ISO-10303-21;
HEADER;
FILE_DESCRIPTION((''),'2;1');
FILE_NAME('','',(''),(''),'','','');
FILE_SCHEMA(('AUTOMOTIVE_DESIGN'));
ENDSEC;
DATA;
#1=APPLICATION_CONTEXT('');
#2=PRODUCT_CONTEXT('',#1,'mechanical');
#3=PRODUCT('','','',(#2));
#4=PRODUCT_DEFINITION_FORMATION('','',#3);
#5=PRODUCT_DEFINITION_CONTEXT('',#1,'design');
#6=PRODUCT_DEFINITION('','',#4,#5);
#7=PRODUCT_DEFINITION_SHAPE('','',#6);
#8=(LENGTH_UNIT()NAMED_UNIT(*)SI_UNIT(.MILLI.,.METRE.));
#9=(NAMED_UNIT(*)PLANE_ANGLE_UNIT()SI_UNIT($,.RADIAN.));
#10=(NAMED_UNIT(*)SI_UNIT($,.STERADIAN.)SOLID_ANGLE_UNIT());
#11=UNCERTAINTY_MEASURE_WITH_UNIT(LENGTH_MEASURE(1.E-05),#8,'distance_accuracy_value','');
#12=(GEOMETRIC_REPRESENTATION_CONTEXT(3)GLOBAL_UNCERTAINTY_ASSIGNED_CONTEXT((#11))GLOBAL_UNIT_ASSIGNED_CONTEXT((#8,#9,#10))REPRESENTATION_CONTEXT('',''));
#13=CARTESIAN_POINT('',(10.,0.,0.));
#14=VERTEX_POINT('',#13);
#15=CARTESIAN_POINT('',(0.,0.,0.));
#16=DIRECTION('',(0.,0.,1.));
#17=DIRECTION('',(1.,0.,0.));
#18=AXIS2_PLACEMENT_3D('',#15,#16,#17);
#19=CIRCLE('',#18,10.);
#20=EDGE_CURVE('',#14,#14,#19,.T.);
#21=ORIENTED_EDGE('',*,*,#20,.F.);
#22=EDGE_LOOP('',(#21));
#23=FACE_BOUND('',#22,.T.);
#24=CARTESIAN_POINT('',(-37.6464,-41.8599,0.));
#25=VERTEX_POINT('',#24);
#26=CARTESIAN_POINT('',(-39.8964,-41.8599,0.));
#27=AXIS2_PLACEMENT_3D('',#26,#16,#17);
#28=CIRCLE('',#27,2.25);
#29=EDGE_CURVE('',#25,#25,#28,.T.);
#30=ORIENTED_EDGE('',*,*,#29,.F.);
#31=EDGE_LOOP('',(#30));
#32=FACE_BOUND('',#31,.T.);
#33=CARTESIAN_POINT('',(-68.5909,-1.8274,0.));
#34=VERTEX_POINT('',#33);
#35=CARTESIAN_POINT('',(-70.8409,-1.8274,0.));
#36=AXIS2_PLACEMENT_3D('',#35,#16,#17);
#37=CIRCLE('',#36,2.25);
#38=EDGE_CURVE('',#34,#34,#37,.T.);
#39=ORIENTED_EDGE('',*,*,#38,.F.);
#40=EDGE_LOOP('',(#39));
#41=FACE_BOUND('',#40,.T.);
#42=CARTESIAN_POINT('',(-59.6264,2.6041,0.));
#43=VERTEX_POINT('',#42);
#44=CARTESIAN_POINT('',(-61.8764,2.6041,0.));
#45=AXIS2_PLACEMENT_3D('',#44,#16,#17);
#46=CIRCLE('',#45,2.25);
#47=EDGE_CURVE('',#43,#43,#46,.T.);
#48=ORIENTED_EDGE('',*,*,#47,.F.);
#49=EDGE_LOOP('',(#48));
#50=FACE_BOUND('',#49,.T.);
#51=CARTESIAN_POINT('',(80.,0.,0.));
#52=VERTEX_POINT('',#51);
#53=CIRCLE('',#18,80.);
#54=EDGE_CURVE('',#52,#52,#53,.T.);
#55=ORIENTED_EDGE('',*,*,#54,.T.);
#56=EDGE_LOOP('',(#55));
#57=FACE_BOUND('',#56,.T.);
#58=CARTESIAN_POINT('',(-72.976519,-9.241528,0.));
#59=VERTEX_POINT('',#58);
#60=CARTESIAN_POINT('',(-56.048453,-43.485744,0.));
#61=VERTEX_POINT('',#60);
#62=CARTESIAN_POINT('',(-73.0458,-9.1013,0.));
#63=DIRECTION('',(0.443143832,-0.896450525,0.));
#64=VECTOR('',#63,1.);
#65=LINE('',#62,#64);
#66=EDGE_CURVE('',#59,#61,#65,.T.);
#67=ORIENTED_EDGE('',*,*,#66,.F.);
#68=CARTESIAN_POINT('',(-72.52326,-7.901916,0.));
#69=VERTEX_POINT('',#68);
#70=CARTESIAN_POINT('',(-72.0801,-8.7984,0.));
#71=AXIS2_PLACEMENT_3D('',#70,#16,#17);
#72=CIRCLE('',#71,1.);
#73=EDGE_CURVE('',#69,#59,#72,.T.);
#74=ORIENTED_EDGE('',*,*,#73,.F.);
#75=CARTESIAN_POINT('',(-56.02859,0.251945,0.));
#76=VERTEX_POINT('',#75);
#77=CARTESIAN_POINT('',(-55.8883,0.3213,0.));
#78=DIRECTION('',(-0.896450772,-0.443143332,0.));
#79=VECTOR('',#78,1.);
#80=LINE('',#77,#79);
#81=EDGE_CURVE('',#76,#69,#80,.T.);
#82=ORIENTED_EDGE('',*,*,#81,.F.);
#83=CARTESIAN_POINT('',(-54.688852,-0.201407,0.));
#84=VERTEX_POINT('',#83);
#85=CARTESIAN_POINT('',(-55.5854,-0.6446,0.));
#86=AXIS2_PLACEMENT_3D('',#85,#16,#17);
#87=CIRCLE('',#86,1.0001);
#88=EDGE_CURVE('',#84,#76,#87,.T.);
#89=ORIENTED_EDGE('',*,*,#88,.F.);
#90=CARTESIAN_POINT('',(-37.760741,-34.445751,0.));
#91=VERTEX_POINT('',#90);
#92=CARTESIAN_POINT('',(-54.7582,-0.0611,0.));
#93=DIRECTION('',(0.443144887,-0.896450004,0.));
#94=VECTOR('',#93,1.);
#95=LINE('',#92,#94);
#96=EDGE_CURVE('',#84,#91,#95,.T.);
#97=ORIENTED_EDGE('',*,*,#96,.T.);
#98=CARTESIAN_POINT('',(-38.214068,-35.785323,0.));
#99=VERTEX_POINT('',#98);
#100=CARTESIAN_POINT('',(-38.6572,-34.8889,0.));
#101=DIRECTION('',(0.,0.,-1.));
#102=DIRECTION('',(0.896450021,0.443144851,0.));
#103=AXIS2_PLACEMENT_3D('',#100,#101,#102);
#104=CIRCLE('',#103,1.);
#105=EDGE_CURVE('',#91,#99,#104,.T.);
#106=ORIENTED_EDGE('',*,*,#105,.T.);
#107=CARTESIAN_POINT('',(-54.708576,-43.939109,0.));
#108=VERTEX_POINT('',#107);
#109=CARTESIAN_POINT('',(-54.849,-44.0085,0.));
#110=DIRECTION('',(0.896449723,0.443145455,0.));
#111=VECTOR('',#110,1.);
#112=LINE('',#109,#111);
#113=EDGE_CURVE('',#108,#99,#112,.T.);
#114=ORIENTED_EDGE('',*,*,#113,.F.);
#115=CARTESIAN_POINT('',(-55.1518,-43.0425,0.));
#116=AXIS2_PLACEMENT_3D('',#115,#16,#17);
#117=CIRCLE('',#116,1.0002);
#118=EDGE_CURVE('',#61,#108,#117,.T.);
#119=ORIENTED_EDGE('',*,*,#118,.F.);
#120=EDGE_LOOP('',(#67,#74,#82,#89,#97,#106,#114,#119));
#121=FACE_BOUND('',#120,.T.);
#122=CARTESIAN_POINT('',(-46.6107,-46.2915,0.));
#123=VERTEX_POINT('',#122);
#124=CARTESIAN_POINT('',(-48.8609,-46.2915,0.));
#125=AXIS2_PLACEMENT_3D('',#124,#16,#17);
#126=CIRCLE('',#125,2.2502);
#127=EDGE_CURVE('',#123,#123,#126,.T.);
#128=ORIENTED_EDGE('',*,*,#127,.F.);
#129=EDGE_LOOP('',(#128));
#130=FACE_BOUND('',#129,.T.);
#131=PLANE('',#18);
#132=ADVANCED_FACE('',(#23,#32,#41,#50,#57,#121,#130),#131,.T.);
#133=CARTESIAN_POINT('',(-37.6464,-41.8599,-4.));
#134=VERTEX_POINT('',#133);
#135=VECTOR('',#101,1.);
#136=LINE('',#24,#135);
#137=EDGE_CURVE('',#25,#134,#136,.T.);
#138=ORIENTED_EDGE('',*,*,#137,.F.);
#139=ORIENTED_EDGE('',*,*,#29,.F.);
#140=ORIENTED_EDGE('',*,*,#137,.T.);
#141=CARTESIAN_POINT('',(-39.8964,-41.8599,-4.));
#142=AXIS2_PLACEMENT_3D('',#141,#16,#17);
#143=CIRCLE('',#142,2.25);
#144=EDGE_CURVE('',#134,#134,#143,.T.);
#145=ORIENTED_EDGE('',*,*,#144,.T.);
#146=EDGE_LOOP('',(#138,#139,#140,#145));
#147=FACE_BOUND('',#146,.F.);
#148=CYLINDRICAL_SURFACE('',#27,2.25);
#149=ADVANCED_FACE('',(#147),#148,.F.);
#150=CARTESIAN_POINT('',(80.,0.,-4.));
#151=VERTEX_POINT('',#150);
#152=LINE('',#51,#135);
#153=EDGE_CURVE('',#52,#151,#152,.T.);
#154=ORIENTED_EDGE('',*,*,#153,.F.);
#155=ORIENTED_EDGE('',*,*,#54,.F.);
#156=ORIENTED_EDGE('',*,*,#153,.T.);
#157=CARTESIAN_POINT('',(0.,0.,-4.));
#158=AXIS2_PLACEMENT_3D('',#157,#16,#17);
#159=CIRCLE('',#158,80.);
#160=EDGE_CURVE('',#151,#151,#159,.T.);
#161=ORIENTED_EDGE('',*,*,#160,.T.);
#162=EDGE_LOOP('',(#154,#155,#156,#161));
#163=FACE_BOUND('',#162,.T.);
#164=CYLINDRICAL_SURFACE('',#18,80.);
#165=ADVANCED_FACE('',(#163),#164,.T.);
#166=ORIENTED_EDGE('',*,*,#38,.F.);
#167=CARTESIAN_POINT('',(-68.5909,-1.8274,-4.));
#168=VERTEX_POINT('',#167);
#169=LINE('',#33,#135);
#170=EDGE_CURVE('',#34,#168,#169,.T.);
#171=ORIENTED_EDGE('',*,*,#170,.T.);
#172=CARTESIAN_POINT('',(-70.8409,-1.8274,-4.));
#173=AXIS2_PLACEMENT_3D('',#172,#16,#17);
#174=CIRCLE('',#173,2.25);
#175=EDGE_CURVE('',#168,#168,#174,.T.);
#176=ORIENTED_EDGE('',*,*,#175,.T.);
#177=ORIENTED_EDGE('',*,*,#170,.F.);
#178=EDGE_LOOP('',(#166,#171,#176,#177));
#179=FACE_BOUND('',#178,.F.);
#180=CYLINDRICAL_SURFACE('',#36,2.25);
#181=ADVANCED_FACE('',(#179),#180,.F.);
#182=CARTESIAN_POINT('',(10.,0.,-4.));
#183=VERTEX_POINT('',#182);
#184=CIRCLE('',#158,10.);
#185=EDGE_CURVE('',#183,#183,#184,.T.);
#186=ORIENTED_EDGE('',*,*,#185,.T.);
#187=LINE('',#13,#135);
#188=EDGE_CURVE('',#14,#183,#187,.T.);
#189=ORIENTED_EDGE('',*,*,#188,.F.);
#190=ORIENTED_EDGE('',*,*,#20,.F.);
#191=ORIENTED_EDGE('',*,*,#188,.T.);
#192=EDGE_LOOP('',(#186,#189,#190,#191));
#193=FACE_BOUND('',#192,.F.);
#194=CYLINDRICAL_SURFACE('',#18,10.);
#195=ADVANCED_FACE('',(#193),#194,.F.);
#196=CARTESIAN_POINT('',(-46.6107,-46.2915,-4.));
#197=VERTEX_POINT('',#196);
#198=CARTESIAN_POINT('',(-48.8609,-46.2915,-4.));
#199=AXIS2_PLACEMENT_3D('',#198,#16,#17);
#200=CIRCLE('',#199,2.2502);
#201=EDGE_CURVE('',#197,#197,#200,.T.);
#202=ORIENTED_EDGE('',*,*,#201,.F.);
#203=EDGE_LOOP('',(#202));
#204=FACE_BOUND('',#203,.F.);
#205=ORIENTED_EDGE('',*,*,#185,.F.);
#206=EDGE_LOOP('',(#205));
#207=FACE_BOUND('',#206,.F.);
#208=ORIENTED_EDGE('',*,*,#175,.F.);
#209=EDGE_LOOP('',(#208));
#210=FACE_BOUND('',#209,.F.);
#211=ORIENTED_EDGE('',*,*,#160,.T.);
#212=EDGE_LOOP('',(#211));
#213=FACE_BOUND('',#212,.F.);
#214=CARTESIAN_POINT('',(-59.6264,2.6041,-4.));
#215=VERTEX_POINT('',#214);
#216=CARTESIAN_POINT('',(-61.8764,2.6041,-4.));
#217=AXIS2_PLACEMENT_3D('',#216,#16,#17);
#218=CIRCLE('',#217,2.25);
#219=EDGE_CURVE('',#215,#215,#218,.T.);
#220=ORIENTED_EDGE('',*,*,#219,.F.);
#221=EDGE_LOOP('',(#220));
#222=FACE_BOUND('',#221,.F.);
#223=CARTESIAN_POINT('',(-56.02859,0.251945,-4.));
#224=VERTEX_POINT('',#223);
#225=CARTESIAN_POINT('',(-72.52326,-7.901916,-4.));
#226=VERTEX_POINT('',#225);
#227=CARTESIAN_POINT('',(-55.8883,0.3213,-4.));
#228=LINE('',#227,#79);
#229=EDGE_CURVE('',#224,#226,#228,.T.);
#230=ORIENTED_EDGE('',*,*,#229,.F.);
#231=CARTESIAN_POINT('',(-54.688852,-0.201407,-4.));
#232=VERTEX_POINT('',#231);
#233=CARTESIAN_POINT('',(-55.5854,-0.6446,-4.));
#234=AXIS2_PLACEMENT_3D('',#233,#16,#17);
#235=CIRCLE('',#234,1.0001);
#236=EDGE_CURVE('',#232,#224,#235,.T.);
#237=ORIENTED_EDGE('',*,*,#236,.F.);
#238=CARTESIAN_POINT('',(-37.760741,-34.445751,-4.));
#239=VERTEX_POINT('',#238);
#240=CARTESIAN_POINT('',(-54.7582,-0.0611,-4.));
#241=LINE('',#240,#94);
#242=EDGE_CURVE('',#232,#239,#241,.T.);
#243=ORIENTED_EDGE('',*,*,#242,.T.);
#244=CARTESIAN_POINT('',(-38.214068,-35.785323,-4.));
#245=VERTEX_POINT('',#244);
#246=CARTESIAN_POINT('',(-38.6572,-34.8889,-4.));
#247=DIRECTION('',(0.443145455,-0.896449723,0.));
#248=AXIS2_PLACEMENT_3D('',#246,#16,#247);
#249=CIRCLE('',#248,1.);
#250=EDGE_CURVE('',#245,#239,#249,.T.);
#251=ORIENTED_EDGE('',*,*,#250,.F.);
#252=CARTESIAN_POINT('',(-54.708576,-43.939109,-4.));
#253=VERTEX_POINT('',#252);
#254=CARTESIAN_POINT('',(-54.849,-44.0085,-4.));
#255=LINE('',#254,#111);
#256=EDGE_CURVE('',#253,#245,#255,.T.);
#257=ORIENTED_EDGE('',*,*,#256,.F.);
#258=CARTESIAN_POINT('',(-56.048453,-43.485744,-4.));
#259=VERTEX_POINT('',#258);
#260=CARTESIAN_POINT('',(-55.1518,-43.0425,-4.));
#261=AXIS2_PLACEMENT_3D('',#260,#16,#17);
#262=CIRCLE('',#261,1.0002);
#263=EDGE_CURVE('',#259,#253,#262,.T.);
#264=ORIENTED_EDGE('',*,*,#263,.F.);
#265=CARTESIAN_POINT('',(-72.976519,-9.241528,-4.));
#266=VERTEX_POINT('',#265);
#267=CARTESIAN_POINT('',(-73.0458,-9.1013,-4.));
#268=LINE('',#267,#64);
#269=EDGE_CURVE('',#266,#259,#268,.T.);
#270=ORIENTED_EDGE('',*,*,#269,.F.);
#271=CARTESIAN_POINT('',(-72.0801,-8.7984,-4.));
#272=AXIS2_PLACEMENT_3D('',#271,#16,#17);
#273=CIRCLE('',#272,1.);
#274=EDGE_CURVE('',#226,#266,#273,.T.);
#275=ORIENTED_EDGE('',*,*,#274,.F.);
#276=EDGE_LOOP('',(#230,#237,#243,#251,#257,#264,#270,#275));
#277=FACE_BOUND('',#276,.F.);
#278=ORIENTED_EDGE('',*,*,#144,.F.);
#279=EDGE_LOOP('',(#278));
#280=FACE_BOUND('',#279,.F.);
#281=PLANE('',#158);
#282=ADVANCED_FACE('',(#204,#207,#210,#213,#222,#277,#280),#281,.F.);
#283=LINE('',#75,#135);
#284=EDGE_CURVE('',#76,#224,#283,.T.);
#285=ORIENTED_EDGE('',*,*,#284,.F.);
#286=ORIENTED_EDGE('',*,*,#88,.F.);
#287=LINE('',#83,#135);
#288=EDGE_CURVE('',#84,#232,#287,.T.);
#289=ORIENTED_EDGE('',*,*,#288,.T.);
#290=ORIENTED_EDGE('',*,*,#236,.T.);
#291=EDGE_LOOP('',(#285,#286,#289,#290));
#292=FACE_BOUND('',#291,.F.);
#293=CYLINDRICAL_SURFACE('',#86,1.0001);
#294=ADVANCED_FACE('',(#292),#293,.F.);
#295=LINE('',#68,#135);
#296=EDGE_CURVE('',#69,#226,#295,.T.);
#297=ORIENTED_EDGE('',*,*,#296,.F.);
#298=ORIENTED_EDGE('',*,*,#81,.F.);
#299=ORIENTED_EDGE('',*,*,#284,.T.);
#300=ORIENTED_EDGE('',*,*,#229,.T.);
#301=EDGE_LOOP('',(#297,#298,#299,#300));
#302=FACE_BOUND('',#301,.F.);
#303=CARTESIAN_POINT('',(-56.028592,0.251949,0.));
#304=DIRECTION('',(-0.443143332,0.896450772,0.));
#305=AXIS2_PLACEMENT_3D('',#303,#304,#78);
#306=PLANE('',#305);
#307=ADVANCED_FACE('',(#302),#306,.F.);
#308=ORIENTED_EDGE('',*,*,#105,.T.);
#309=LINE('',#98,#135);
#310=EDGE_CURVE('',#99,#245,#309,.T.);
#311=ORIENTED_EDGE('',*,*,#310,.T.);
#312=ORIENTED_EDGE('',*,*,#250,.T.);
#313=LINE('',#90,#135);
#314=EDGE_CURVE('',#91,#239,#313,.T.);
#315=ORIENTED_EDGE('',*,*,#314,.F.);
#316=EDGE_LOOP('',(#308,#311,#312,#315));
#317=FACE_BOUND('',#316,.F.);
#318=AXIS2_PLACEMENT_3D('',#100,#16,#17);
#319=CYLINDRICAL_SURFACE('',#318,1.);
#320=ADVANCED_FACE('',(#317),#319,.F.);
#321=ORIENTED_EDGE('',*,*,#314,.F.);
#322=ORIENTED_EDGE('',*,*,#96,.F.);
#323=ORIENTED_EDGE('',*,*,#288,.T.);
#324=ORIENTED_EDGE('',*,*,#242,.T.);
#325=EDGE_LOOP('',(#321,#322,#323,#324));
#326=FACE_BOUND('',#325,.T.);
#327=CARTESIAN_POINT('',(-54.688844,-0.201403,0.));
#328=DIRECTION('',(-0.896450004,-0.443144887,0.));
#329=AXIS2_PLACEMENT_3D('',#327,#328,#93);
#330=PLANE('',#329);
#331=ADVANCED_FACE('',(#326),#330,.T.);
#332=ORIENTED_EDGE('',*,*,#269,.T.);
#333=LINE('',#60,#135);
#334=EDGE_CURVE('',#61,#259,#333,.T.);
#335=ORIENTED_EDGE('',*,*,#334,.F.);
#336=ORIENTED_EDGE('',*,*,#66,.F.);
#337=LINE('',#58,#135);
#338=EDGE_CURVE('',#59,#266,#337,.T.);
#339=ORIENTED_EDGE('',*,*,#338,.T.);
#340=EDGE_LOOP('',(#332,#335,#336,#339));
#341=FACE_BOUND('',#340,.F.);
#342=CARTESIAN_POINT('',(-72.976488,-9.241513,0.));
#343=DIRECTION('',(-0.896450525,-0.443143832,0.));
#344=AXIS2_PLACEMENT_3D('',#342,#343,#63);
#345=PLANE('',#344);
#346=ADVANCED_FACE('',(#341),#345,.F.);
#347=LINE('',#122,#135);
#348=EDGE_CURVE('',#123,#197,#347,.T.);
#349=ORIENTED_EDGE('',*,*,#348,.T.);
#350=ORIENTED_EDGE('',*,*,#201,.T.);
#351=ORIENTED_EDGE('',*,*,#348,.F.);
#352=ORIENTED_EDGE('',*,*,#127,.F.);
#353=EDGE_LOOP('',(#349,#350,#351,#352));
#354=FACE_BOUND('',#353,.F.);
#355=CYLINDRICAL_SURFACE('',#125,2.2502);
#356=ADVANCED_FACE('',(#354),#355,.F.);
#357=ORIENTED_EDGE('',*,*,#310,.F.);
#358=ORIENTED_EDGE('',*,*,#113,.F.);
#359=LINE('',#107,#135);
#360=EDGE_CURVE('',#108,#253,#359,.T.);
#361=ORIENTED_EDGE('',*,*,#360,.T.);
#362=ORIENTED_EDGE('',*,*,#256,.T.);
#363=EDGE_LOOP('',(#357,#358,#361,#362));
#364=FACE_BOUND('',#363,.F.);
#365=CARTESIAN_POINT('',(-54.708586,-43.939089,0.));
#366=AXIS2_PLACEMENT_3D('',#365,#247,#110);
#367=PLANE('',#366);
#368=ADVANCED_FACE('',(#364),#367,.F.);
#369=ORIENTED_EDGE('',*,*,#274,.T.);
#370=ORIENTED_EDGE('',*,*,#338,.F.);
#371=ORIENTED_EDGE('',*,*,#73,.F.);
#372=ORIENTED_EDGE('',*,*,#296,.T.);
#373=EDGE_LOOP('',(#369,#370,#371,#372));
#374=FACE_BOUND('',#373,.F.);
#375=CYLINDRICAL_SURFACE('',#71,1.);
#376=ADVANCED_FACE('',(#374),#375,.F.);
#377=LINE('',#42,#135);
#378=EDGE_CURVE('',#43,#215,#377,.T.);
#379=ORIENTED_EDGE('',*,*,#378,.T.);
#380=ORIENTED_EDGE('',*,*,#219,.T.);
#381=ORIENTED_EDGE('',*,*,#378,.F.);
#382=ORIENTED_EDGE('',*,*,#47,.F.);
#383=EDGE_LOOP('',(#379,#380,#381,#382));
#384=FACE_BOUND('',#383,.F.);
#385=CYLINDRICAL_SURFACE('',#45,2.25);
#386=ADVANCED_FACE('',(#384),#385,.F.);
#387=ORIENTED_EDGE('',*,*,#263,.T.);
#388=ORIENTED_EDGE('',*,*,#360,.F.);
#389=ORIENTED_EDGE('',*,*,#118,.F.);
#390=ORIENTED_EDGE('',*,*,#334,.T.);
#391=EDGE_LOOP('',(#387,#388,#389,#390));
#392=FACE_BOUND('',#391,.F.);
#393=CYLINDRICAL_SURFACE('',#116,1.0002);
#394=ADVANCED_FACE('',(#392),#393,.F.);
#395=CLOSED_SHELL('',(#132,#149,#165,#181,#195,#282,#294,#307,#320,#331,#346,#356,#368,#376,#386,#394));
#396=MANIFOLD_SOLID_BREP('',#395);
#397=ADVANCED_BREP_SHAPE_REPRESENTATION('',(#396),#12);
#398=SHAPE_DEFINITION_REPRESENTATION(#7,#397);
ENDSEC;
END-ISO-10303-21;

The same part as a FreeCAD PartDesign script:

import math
import FreeCAD as App
import Part
import Sketcher
Q = App.Units.Quantity

doc = App.newDocument("Part")
params = doc.addObject("Spreadsheet::Sheet", "Params")
for row, (alias, value) in enumerate([
    ("sketch1_diameter", "160 mm"),
    ("sketch1_radius", "1 mm"),
    ("sketch1_diameter2", "4.5 mm"),
    ("sketch1_length", "18.4 mm"),
    ("sketch1_length2", "38.2 mm"),
    ("pad1_length", "4 mm"),
    ("sketch2_diameter", "20 mm"),
    ("pocket1_length", "10 mm"),
], start=1):
    params.set(f"A{row}", alias)
    params.set(f"B{row}", "=" + value)
    params.setAlias(f"B{row}", alias)

body = doc.addObject("PartDesign::Body", "Body")

# Sketch on XY plane
sketch1 = body.newObject("Sketcher::SketchObject", "Sketch")
sketch1.AttachmentSupport = (doc.getObject("XY_Plane"), [""])
sketch1.MapMode = "FlatFace"
sketch1.addGeometry([
    Part.Circle(App.Vector(0, 0, 0), App.Vector(0, 0, 1), 80),  # 0
    Part.Circle(App.Vector(-48.8609, -46.2915, 0), App.Vector(0, 0, 1), 2.2502),  # 1
    Part.Circle(App.Vector(-39.8964, -41.8599, 0), App.Vector(0, 0, 1), 2.25),  # 2
    Part.LineSegment(App.Vector(-56.048477, -43.485756, 0), App.Vector(-72.976488, -9.241513, 0)),  # 3
    Part.ArcOfCircle(Part.Circle(App.Vector(-72.0801, -8.7984, 0), App.Vector(0, 0, 1), 1), math.radians(116.304615), math.radians(206.304643)),  # 4
    Part.LineSegment(App.Vector(-72.523276, -7.901883, 0), App.Vector(-56.028592, 0.251949, 0)),  # 5
    Part.ArcOfCircle(Part.Circle(App.Vector(-55.5854, -0.6446, 0), App.Vector(0, 0, 1), 1.0001), math.radians(26.304712), math.radians(116.30461)),  # 6
    Part.LineSegment(App.Vector(-54.688844, -0.201403, 0), App.Vector(-37.760732, -34.445746, 0)),  # 7
    Part.ArcOfCircle(Part.Circle(App.Vector(-38.6572, -34.8889, 0), App.Vector(0, 0, 1), 1), math.radians(-63.695254), math.radians(26.304708)),  # 8
    Part.LineSegment(App.Vector(-38.214081, -35.785296, 0), App.Vector(-54.708586, -43.939089, 0)),  # 9
    Part.ArcOfCircle(Part.Circle(App.Vector(-55.1518, -43.0425, 0), App.Vector(0, 0, 1), 1.0002), math.radians(-153.695359), math.radians(-63.695254)),  # 10
    Part.Circle(App.Vector(-70.8409, -1.8274, 0), App.Vector(0, 0, 1), 2.25),  # 11
    Part.Circle(App.Vector(-61.8764, 2.6041, 0), App.Vector(0, 0, 1), 2.25),  # 12
], False)
sketch1.addConstraint([
    Sketcher.Constraint("Tangent", 3, 2, 4, 2),
    Sketcher.Constraint("Tangent", 4, 1, 5, 1),
    Sketcher.Constraint("Tangent", 5, 2, 6, 2),
    Sketcher.Constraint("Tangent", 6, 1, 7, 1),
    Sketcher.Constraint("Tangent", 7, 2, 8, 2),
    Sketcher.Constraint("Tangent", 8, 1, 9, 1),
    Sketcher.Constraint("Tangent", 9, 2, 10, 2),
    Sketcher.Constraint("Tangent", 10, 1, 3, 1),
    Sketcher.Constraint("Coincident", 0, 3, -1, 1),
    Sketcher.Constraint("Equal", 1, 2),
    Sketcher.Constraint("Equal", 4, 6),
    Sketcher.Constraint("Equal", 6, 8),
    Sketcher.Constraint("Equal", 8, 10),
    Sketcher.Constraint("Equal", 2, 11),
    Sketcher.Constraint("Equal", 11, 12),
    Sketcher.Constraint("Perpendicular", 3, 5),
    Sketcher.Constraint("Perpendicular", 5, 7),
    Sketcher.Constraint("Perpendicular", 7, 9),
    Sketcher.Constraint("Diameter", 0, Q("160 mm")),
    Sketcher.Constraint("Radius", 4, Q("1 mm")),
    Sketcher.Constraint("Diameter", 2, Q("4.5 mm")),
    Sketcher.Constraint("Distance", 5, Q("18.4 mm")),
    Sketcher.Constraint("Distance", 7, Q("38.2 mm")),
    Sketcher.Constraint("DistanceX", 3, 2, 12, 3, Q("11.1 mm")),
    Sketcher.Constraint("DistanceY", 2, 3, -1, 1, Q("41.86 mm")),
    Sketcher.Constraint("DistanceX", 4, 3, -1, 1, Q("72.08 mm")),
    Sketcher.Constraint("DistanceX", 11, 3, 1, 3, Q("21.98 mm")),
    Sketcher.Constraint("DistanceX", 1, 3, -1, 1, Q("48.861 mm")),
    Sketcher.Constraint("DistanceY", 8, 3, -1, 1, Q("34.889 mm")),
    Sketcher.Constraint("DistanceY", -1, 1, 12, 3, Q("2.604 mm")),
    Sketcher.Constraint("DistanceY", 4, 1, -1, 1, Q("7.902 mm")),
    Sketcher.Constraint("DistanceY", 1, 3, 4, 3, Q("37.493 mm")),
    Sketcher.Constraint("DistanceX", 6, 3, 2, 3, Q("15.689 mm")),
    Sketcher.Constraint("DistanceY", 4, 3, 11, 3, Q("6.971 mm")),
])
sketch1.setExpression("Constraints[18]", "Params.sketch1_diameter")
sketch1.setExpression("Constraints[19]", "Params.sketch1_radius")
sketch1.setExpression("Constraints[20]", "Params.sketch1_diameter2")
sketch1.setExpression("Constraints[21]", "Params.sketch1_length")
sketch1.setExpression("Constraints[22]", "Params.sketch1_length2")
pad1 = body.newObject("PartDesign::Pad", "Pad")
pad1.Profile = sketch1
pad1.setExpression("Length", "Params.pad1_length")
pad1.Reversed = True

# Sketch on XY plane
sketch2 = body.newObject("Sketcher::SketchObject", "Sketch001")
sketch2.AttachmentSupport = (doc.getObject("XY_Plane"), [""])
sketch2.MapMode = "FlatFace"
sketch2.addGeometry(Part.Circle(App.Vector(0, 0, 0), App.Vector(0, 0, 1), 10), False)
sketch2.addConstraint([
    Sketcher.Constraint("Coincident", 0, 3, -1, 1),
    Sketcher.Constraint("Diameter", 0, Q("20 mm")),
])
sketch2.setExpression("Constraints[1]", "Params.sketch2_diameter")
pocket1 = body.newObject("PartDesign::Pocket", "Pocket")
pocket1.Profile = sketch2
pocket1.setExpression("Length", "Params.pocket1_length")

doc.recompute()
